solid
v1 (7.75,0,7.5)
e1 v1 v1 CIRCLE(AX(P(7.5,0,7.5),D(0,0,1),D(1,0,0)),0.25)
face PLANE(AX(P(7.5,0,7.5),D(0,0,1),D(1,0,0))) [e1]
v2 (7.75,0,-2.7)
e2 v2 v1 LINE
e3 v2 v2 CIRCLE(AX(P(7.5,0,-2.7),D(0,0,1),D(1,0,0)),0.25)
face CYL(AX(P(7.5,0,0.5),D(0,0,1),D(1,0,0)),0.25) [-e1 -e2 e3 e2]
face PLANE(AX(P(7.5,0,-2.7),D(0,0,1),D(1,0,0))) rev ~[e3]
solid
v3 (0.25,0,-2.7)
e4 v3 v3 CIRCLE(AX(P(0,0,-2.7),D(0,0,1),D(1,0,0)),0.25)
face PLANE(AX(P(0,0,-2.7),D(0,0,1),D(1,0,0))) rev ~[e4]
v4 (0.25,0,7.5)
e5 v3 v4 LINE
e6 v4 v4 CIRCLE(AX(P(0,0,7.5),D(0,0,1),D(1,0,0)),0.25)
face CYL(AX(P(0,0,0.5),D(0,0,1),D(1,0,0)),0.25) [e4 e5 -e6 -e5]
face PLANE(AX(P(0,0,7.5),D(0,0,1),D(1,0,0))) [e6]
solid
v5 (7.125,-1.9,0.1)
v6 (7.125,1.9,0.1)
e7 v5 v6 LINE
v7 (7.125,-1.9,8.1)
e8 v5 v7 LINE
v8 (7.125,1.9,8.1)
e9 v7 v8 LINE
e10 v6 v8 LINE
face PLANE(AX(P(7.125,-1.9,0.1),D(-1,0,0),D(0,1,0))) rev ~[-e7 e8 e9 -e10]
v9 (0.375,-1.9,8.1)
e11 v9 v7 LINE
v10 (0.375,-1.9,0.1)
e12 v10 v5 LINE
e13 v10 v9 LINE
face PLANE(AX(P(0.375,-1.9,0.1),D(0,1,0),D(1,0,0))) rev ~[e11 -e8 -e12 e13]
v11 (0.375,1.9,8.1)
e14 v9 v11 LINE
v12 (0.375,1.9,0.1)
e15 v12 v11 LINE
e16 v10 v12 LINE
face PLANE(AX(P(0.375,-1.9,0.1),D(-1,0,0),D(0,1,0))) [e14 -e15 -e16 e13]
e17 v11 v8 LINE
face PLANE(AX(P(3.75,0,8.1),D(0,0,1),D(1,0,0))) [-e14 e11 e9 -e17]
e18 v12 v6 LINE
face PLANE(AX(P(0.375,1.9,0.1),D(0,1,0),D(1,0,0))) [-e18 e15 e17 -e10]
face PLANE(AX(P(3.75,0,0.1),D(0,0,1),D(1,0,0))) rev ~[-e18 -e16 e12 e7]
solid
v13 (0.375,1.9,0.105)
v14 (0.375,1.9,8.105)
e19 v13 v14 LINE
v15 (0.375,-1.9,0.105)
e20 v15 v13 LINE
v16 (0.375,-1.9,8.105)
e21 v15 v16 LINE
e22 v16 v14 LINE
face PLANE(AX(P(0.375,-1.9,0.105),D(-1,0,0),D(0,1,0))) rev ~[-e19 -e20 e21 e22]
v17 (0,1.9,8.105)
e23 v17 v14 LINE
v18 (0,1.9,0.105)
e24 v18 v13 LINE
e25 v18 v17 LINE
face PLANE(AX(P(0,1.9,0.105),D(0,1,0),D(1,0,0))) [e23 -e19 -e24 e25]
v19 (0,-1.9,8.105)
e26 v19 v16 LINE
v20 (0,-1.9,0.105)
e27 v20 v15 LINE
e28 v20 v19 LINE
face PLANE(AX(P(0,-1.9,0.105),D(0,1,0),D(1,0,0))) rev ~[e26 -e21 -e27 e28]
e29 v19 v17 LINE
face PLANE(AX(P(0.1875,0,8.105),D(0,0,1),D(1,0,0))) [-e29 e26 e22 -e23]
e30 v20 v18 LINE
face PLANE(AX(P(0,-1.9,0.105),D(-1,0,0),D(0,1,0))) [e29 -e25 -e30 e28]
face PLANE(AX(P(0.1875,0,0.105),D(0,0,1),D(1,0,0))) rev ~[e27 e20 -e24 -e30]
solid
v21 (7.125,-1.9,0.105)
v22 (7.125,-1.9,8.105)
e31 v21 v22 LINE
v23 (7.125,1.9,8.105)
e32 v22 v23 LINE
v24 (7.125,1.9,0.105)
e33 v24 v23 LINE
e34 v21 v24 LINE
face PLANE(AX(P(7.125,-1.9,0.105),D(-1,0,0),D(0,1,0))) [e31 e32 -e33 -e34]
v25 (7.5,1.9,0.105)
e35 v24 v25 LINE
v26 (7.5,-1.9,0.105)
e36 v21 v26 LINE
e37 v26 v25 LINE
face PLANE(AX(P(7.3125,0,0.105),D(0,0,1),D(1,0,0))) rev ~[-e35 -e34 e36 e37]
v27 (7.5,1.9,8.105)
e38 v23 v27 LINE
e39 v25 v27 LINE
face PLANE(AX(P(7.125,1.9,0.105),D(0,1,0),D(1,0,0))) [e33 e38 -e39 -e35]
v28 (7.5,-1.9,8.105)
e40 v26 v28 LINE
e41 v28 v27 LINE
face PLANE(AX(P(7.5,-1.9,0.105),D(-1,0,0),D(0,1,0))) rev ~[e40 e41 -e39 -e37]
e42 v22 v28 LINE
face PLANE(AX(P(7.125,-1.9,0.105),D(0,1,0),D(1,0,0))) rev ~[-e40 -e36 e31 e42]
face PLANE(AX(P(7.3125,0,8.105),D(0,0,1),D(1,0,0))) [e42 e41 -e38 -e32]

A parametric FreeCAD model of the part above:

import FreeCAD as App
import Part
import Sketcher

V = App.Vector
Q = App.Units.Quantity

doc = App.newDocument("Part")
body = doc.addObject("PartDesign::Body", "Body")

# Sketch on XY plane
sketch1 = body.newObject("Sketcher::SketchObject", "Sketch")
sketch1.AttachmentSupport = (doc.getObject("XY_Plane"), [""])
sketch1.MapMode = "FlatFace"
sketch1.AttachmentOffset = App.Placement(V(0, 0, 0.1), App.Rotation())
sketch1.addGeometry(Part.LineSegment(V(0.4, 1.9, 0), V(0.4, -1.9, 0)), False)
sketch1.addGeometry(Part.LineSegment(V(0.4, -1.9, 0), V(7.1, -1.9, 0)), False)
sketch1.addGeometry(Part.LineSegment(V(7.1, -1.9, 0), V(7.1, 1.9, 0)), False)
sketch1.addGeometry(Part.LineSegment(V(7.1, 1.9, 0), V(0.4, 1.9, 0)), False)
sketch1.addConstraint(Sketcher.Constraint("Coincident", 0, 2, 1, 1))
sketch1.addConstraint(Sketcher.Constraint("Coincident", 1, 2, 2, 1))
sketch1.addConstraint(Sketcher.Constraint("Coincident", 2, 2, 3, 1))
sketch1.addConstraint(Sketcher.Constraint("Coincident", 3, 2, 0, 1))
sketch1.addConstraint(Sketcher.Constraint("Vertical", 0))
sketch1.addConstraint(Sketcher.Constraint("Horizontal", 1))
sketch1.addConstraint(Sketcher.Constraint("Vertical", 2))
sketch1.addConstraint(Sketcher.Constraint("Horizontal", 3))
sketch1.addConstraint(Sketcher.Constraint("DistanceY", 0, 2, 0, 1, Q("3.8 mm")))
sketch1.addConstraint(Sketcher.Constraint("DistanceX", 1, 1, 1, 2, Q("6.75 mm")))
sketch1.addConstraint(Sketcher.Constraint("DistanceY", 0, 2, -1, 1, Q("1.9 mm")))
sketch1.addConstraint(Sketcher.Constraint("DistanceX", -1, 1, 0, 2, Q("0.375 mm")))
pad1 = body.newObject("PartDesign::Pad", "Pad")
pad1.Profile = sketch1
pad1.Length = 8
body2 = doc.addObject("PartDesign::Body", "Body001")
body2.AllowCompound = True

# Sketch on XY plane
sketch2 = body2.newObject("Sketcher::SketchObject", "Sketch001")
sketch2.AttachmentSupport = (doc.getObject("XY_Plane001"), [""])
sketch2.MapMode = "FlatFace"
sketch2.AttachmentOffset = App.Placement(V(0, 0, 0.5), App.Rotation())
sketch2.addGeometry(Part.Circle(V(0, 0, 0), V(0, 0, 1), 0.25), False)
sketch2.addGeometry(Part.Circle(V(7.5, 0, 0), V(0, 0, 1), 0.25), False)
sketch2.addConstraint(Sketcher.Constraint("Coincident", 0, 3, -1, 1))
sketch2.addConstraint(Sketcher.Constraint("Equal", 0, 1))
sketch2.addConstraint(Sketcher.Constraint("PointOnObject", 1, 3, -1))
sketch2.addConstraint(Sketcher.Constraint("Diameter", 0, Q("0.5 mm")))
sketch2.addConstraint(Sketcher.Constraint("DistanceX", -1, 1, 1, 3, Q("7.5 mm")))
pad2 = body2.newObject("PartDesign::Pad", "Pad001")
pad2.Profile = sketch2
pad2.Type = "TwoLengths"
pad2.Length = 7
pad2.Length2 = 3.2
body3 = doc.addObject("PartDesign::Body", "Body002")
body3.AllowCompound = True

# Sketch on XY plane
sketch3 = body3.newObject("Sketcher::SketchObject", "Sketch002")
sketch3.AttachmentSupport = (doc.getObject("XY_Plane002"), [""])
sketch3.MapMode = "FlatFace"
sketch3.AttachmentOffset = App.Placement(V(0, 0, 0.105), App.Rotation())
sketch3.addGeometry(Part.LineSegment(V(0, 1.9, 0), V(0, -1.9, 0)), False)
sketch3.addGeometry(Part.LineSegment(V(0, -1.9, 0), V(0.38, -1.9, 0)), False)
sketch3.addGeometry(Part.LineSegment(V(0.38, -1.9, 0), V(0.38, 1.9, 0)), False)
sketch3.addGeometry(Part.LineSegment(V(0.38, 1.9, 0), V(0, 1.9, 0)), False)
sketch3.addGeometry(Part.LineSegment(V(7.12, 1.9, 0), V(7.12, -1.9, 0)), False)
sketch3.addGeometry(Part.LineSegment(V(7.12, -1.9, 0), V(7.5, -1.9, 0)), False)
sketch3.addGeometry(Part.LineSegment(V(7.5, -1.9, 0), V(7.5, 1.9, 0)), False)
sketch3.addGeometry(Part.LineSegment(V(7.5, 1.9, 0), V(7.12, 1.9, 0)), False)
sketch3.addConstraint(Sketcher.Constraint("Coincident", 0, 2, 1, 1))
sketch3.addConstraint(Sketcher.Constraint("Coincident", 1, 2, 2, 1))
sketch3.addConstraint(Sketcher.Constraint("Coincident", 2, 2, 3, 1))
sketch3.addConstraint(Sketcher.Constraint("Coincident", 3, 2, 0, 1))
sketch3.addConstraint(Sketcher.Constraint("Coincident", 4, 2, 5, 1))
sketch3.addConstraint(Sketcher.Constraint("Coincident", 5, 2, 6, 1))
sketch3.addConstraint(Sketcher.Constraint("Coincident", 6, 2, 7, 1))
sketch3.addConstraint(Sketcher.Constraint("Coincident", 7, 2, 4, 1))
sketch3.addConstraint(Sketcher.Constraint("Vertical", 0))
sketch3.addConstraint(Sketcher.Constraint("Horizontal", 1))
sketch3.addConstraint(Sketcher.Constraint("Vertical", 2))
sketch3.addConstraint(Sketcher.Constraint("Horizontal", 3))
sketch3.addConstraint(Sketcher.Constraint("Vertical", 4))
sketch3.addConstraint(Sketcher.Constraint("Horizontal", 5))
sketch3.addConstraint(Sketcher.Constraint("Vertical", 6))
sketch3.addConstraint(Sketcher.Constraint("Horizontal", 7))
sketch3.addConstraint(Sketcher.Constraint("Symmetric", 0, 2, 3, 2, -1, 1))
sketch3.addConstraint(Sketcher.Constraint("Horizontal", 1, 2, 4, 2))
sketch3.addConstraint(Sketcher.Constraint("Horizontal", 3, 2, 6, 2))
sketch3.addConstraint(Sketcher.Constraint("Equal", 3, 5))
sketch3.addConstraint(Sketcher.Constraint("DistanceY", 0, 2, 0, 1, Q("3.8 mm")))
sketch3.addConstraint(Sketcher.Constraint("DistanceX", -1, 1, 5, 2, Q("7.5 mm")))
sketch3.addConstraint(Sketcher.Constraint("DistanceX", 1, 1, 1, 2, Q("0.375 mm")))
pad3 = body3.newObject("PartDesign::Pad", "Pad002")
pad3.Profile = sketch3
pad3.Length = 8

doc.recompute()
